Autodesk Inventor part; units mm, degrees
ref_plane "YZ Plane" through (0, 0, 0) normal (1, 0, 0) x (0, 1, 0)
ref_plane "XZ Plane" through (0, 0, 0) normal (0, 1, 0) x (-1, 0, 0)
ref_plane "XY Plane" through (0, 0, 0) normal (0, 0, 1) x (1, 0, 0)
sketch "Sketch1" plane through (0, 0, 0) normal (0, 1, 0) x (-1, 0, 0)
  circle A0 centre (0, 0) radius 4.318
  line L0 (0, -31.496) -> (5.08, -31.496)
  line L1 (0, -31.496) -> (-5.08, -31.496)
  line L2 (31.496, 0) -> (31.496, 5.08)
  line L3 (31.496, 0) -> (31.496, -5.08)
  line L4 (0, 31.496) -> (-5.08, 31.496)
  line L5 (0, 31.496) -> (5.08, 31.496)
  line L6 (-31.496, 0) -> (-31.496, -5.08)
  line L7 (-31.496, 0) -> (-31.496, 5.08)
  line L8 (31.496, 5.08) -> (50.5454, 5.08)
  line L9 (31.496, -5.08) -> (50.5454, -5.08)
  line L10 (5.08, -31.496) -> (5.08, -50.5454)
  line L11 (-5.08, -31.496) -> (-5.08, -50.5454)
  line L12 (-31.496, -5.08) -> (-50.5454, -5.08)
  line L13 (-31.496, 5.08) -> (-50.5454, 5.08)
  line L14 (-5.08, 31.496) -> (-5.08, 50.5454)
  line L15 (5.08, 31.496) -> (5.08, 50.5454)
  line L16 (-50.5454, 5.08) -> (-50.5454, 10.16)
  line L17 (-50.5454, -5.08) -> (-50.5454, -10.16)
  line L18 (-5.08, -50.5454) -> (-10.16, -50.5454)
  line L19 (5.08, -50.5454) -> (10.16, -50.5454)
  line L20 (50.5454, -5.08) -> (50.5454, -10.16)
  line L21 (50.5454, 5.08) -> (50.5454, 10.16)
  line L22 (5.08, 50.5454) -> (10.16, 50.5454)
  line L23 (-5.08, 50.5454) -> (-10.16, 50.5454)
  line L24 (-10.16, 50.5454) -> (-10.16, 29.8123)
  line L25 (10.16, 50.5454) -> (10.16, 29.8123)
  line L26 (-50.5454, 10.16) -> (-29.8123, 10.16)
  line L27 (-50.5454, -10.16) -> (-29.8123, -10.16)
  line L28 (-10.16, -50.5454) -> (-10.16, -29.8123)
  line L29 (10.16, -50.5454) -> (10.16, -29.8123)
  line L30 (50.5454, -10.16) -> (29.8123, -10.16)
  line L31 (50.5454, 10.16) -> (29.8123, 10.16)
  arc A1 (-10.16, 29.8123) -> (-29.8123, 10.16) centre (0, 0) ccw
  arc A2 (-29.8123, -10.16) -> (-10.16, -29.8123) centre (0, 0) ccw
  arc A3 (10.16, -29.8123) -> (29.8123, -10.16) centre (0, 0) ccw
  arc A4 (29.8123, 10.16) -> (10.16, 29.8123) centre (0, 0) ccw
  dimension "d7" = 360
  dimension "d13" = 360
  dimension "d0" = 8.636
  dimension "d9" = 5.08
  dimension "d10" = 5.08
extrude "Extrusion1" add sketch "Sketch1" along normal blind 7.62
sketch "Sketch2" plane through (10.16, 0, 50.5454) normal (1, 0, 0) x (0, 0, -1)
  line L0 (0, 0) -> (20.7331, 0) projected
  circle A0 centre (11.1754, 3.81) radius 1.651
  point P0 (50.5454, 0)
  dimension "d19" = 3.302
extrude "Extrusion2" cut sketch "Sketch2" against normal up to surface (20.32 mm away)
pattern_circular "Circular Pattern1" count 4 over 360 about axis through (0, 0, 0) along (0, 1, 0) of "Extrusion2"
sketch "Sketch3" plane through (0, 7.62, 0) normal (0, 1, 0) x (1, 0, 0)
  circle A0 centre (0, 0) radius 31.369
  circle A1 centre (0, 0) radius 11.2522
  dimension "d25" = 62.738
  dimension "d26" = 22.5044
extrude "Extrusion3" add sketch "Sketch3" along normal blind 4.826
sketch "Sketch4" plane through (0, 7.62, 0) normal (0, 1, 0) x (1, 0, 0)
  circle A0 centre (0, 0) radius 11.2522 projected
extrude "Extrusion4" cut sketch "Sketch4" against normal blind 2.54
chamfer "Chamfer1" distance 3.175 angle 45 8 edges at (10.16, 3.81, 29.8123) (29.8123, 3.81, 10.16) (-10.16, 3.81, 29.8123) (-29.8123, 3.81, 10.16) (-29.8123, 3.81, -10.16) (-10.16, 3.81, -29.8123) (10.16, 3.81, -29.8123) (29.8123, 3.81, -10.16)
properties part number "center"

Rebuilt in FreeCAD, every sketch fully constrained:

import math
import FreeCAD as App
import Part
import Sketcher

V = App.Vector
Q = App.Units.Quantity


def edges_at(feature, points):
    """Names of the edges that pass closest to the given points."""
    edges = feature.Shape.Edges
    near = lambda p: min(range(len(edges)), key=lambda i: edges[i].distToShape(Part.Vertex(*p))[0])
    return sorted({f"Edge{near(p) + 1}" for p in points})

doc = App.newDocument("Part")
body = doc.addObject("PartDesign::Body", "Body")

# Sketch on XZ plane
sketch1 = body.newObject("Sketcher::SketchObject", "Sketch")
sketch1.AttachmentSupport = (doc.getObject("XZ_Plane"), [""])
sketch1.MapMode = "FlatFace"
sketch1.addGeometry(Part.LineSegment(V(5.1, -31.5, 0), V(-5.1, -31.5, 0)), False)
sketch1.addGeometry(Part.LineSegment(V(-5.1, -31.5, 0), V(-5.1, -50.5, 0)), False)
sketch1.addGeometry(Part.LineSegment(V(-5.1, -50.5, 0), V(-10.2, -50.5, 0)), False)
sketch1.addGeometry(Part.LineSegment(V(-10.2, -50.5, 0), V(-10.2, -29.8, 0)), False)
sketch1.addGeometry(Part.ArcOfCircle(Part.Circle(V(0, 0, 0), V(0, 0, 1), 31.5), math.radians(-161), math.radians(-109)), False)
sketch1.addGeometry(Part.LineSegment(V(-29.8, -10.2, 0), V(-50.5, -10.2, 0)), False)
sketch1.addGeometry(Part.LineSegment(V(-50.5, -10.2, 0), V(-50.5, -5.1, 0)), False)
sketch1.addGeometry(Part.LineSegment(V(-50.5, -5.1, 0), V(-31.5, -5.1, 0)), False)
sketch1.addGeometry(Part.LineSegment(V(-31.5, -5.1, 0), V(-31.5, 5.1, 0)), False)
sketch1.addGeometry(Part.LineSegment(V(-31.5, 5.1, 0), V(-50.5, 5.1, 0)), False)
sketch1.addGeometry(Part.LineSegment(V(-50.5, 5.1, 0), V(-50.5, 10.2, 0)), False)
sketch1.addGeometry(Part.LineSegment(V(-50.5, 10.2, 0), V(-29.8, 10.2, 0)), False)
sketch1.addGeometry(Part.ArcOfCircle(Part.Circle(V(0, 0, 0), V(0, 0, 1), 31.5), math.radians(109), math.radians(161)), False)
sketch1.addGeometry(Part.LineSegment(V(-10.2, 29.8, 0), V(-10.2, 50.5, 0)), False)
sketch1.addGeometry(Part.LineSegment(V(-10.2, 50.5, 0), V(-5.1, 50.5, 0)), False)
sketch1.addGeometry(Part.LineSegment(V(-5.1, 50.5, 0), V(-5.1, 31.5, 0)), False)
sketch1.addGeometry(Part.LineSegment(V(-5.1, 31.5, 0), V(5.1, 31.5, 0)), False)
sketch1.addGeometry(Part.LineSegment(V(5.1, 31.5, 0), V(5.1, 50.5, 0)), False)
sketch1.addGeometry(Part.LineSegment(V(5.1, 50.5, 0), V(10.2, 50.5, 0)), False)
sketch1.addGeometry(Part.LineSegment(V(10.2, 50.5, 0), V(10.2, 29.8, 0)), False)
sketch1.addGeometry(Part.ArcOfCircle(Part.Circle(V(0, 0, 0), V(0, 0, 1), 31.5), math.radians(19), math.radians(71)), False)
sketch1.addGeometry(Part.LineSegment(V(29.8, 10.2, 0), V(50.5, 10.2, 0)), False)
sketch1.addGeometry(Part.LineSegment(V(50.5, 10.2, 0), V(50.5, 5.1, 0)), False)
sketch1.addGeometry(Part.LineSegment(V(50.5, 5.1, 0), V(31.5, 5.1, 0)), False)
sketch1.addGeometry(Part.LineSegment(V(31.5, 5.1, 0), V(31.5, -5.1, 0)), False)
sketch1.addGeometry(Part.LineSegment(V(31.5, -5.1, 0), V(50.5, -5.1, 0)), False)
sketch1.addGeometry(Part.LineSegment(V(50.5, -5.1, 0), V(50.5, -10.2, 0)), False)
sketch1.addGeometry(Part.LineSegment(V(50.5, -10.2, 0), V(29.8, -10.2, 0)), False)
sketch1.addGeometry(Part.ArcOfCircle(Part.Circle(V(0, 0, 0), V(0, 0, 1), 31.5), math.radians(-71), math.radians(-19)), False)
sketch1.addGeometry(Part.LineSegment(V(10.2, -29.8, 0), V(10.2, -50.5, 0)), False)
sketch1.addGeometry(Part.LineSegment(V(10.2, -50.5, 0), V(5.1, -50.5, 0)), False)
sketch1.addGeometry(Part.LineSegment(V(5.1, -50.5, 0), V(5.1, -31.5, 0)), False)
sketch1.addGeometry(Part.Circle(V(0, 0, 0), V(0, 0, 1), 4.3), False)
sketch1.addConstraint(Sketcher.Constraint("Coincident", 0, 2, 1, 1))
sketch1.addConstraint(Sketcher.Constraint("Coincident", 1, 2, 2, 1))
sketch1.addConstraint(Sketcher.Constraint("Coincident", 2, 2, 3, 1))
sketch1.addConstraint(Sketcher.Constraint("Coincident", 3, 2, 4, 2))
sketch1.addConstraint(Sketcher.Constraint("Coincident", 4, 1, 5, 1))
sketch1.addConstraint(Sketcher.Constraint("Coincident", 5, 2, 6, 1))
sketch1.addConstraint(Sketcher.Constraint("Coincident", 6, 2, 7, 1))
sketch1.addConstraint(Sketcher.Constraint("Coincident", 7, 2, 8, 1))
sketch1.addConstraint(Sketcher.Constraint("Coincident", 8, 2, 9, 1))
sketch1.addConstraint(Sketcher.Constraint("Coincident", 9, 2, 10, 1))
sketch1.addConstraint(Sketcher.Constraint("Coincident", 10, 2, 11, 1))
sketch1.addConstraint(Sketcher.Constraint("Coincident", 11, 2, 12, 2))
sketch1.addConstraint(Sketcher.Constraint("Coincident", 12, 1, 13, 1))
sketch1.addConstraint(Sketcher.Constraint("Coincident", 13, 2, 14, 1))
sketch1.addConstraint(Sketcher.Constraint("Coincident", 14, 2, 15, 1))
sketch1.addConstraint(Sketcher.Constraint("Coincident", 15, 2, 16, 1))
sketch1.addConstraint(Sketcher.Constraint("Coincident", 16, 2, 17, 1))
sketch1.addConstraint(Sketcher.Constraint("Coincident", 17, 2, 18, 1))
sketch1.addConstraint(Sketcher.Constraint("Coincident", 18, 2, 19, 1))
sketch1.addConstraint(Sketcher.Constraint("Coincident", 19, 2, 20, 2))
sketch1.addConstraint(Sketcher.Constraint("Coincident", 20, 1, 21, 1))
sketch1.addConstraint(Sketcher.Constraint("Coincident", 21, 2, 22, 1))
sketch1.addConstraint(Sketcher.Constraint("Coincident", 22, 2, 23, 1))
sketch1.addConstraint(Sketcher.Constraint("Coincident", 23, 2, 24, 1))
sketch1.addConstraint(Sketcher.Constraint("Coincident", 24, 2, 25, 1))
sketch1.addConstraint(Sketcher.Constraint("Coincident", 25, 2, 26, 1))
sketch1.addConstraint(Sketcher.Constraint("Coincident", 26, 2, 27, 1))
sketch1.addConstraint(Sketcher.Constraint("Coincident", 27, 2, 28, 2))
sketch1.addConstraint(Sketcher.Constraint("Coincident", 28, 1, 29, 1))
sketch1.addConstraint(Sketcher.Constraint("Coincident", 29, 2, 30, 1))
sketch1.addConstraint(Sketcher.Constraint("Coincident", 30, 2, 31, 1))
sketch1.addConstraint(Sketcher.Constraint("Coincident", 31, 2, 0, 1))
sketch1.addConstraint(Sketcher.Constraint("Horizontal", 0))
sketch1.addConstraint(Sketcher.Constraint("Vertical", 1))
sketch1.addConstraint(Sketcher.Constraint("Horizontal", 2))
sketch1.addConstraint(Sketcher.Constraint("Vertical", 3))
sketch1.addConstraint(Sketcher.Constraint("Horizontal", 5))
sketch1.addConstraint(Sketcher.Constraint("Vertical", 6))
sketch1.addConstraint(Sketcher.Constraint("Horizontal", 7))
sketch1.addConstraint(Sketcher.Constraint("Vertical", 8))
sketch1.addConstraint(Sketcher.Constraint("Horizontal", 9))
sketch1.addConstraint(Sketcher.Constraint("Vertical", 10))
sketch1.addConstraint(Sketcher.Constraint("Horizontal", 11))
sketch1.addConstraint(Sketcher.Constraint("Vertical", 13))
sketch1.addConstraint(Sketcher.Constraint("Horizontal", 14))
sketch1.addConstraint(Sketcher.Constraint("Vertical", 15))
sketch1.addConstraint(Sketcher.Constraint("Horizontal", 16))
sketch1.addConstraint(Sketcher.Constraint("Vertical", 17))
sketch1.addConstraint(Sketcher.Constraint("Horizontal", 18))
sketch1.addConstraint(Sketcher.Constraint("Vertical", 19))
sketch1.addConstraint(Sketcher.Constraint("Horizontal", 21))
sketch1.addConstraint(Sketcher.Constraint("Vertical", 22))
sketch1.addConstraint(Sketcher.Constraint("Horizontal", 23))
sketch1.addConstraint(Sketcher.Constraint("Vertical", 24))
sketch1.addConstraint(Sketcher.Constraint("Horizontal", 25))
sketch1.addConstraint(Sketcher.Constraint("Vertical", 26))
sketch1.addConstraint(Sketcher.Constraint("Horizontal", 27))
sketch1.addConstraint(Sketcher.Constraint("Vertical", 29))
sketch1.addConstraint(Sketcher.Constraint("Horizontal", 30))
sketch1.addConstraint(Sketcher.Constraint("Vertical", 31))
sketch1.addConstraint(Sketcher.Constraint("Coincident", 4, 3, -1, 1))
sketch1.addConstraint(Sketcher.Constraint("Coincident", 12, 3, -1, 1))
sketch1.addConstraint(Sketcher.Constraint("Coincident", 20, 3, -1, 1))
sketch1.addConstraint(Sketcher.Constraint("Coincident", 28, 3, -1, 1))
sketch1.addConstraint(Sketcher.Constraint("Coincident", 32, 3, -1, 1))
sketch1.addConstraint(Sketcher.Constraint("Equal", 4, 12))
sketch1.addConstraint(Sketcher.Constraint("Equal", 12, 20))
sketch1.addConstraint(Sketcher.Constraint("Equal", 20, 28))
sketch1.addConstraint(Sketcher.Constraint("Symmetric", 0, 2, 16, 2, -1, 1))
sketch1.addConstraint(Sketcher.Constraint("Symmetric", 2, 2, 18, 2, -1, 1))
sketch1.addConstraint(Sketcher.Constraint("Symmetric", 5, 2, 21, 2, -1, 1))
sketch1.addConstraint(Sketcher.Constraint("Symmetric", 7, 2, 23, 2, -1, 1))
sketch1.addConstraint(Sketcher.Constraint("Symmetric", 9, 2, 25, 2, -1, 1))
sketch1.addConstraint(Sketcher.Constraint("Symmetric", 13, 2, 29, 2, -1, 1))
sketch1.addConstraint(Sketcher.Constraint("Symmetric", 14, 2, 17, 2, -2))
sketch1.addConstraint(Sketcher.Constraint("Symmetric", 10, 2, 21, 2, -2))
sketch1.addConstraint(Sketcher.Constraint("Horizontal", 12, 1, 19, 2))
sketch1.addConstraint(Sketcher.Constraint("Horizontal", 9, 2, 22, 2))
sketch1.addConstraint(Sketcher.Constraint("Horizontal", 5, 2, 26, 2))
sketch1.addConstraint(Sketcher.Constraint("Vertical", 17, 2, 30, 2))
sketch1.addConstraint(Sketcher.Constraint("Equal", 25, 1))
sketch1.addConstraint(Sketcher.Constraint("Equal", 27, 3))
sketch1.addConstraint(Sketcher.Constraint("Equal", 30, 6))
sketch1.addConstraint(Sketcher.Constraint("Equal", 16, 8))
sketch1.addConstraint(Sketcher.Constraint("Diameter", 32, Q("0.34 in")))
sketch1.addConstraint(Sketcher.Constraint("DistanceX", 2, 2, 2, 1, Q("0.2 in")))
sketch1.addConstraint(Sketcher.Constraint("DistanceX", 0, 2, -1, 1, Q("0.2 in")))
sketch1.addConstraint(Sketcher.Constraint("Radius", 4, Q("1.24 in")))
sketch1.addConstraint(Sketcher.Constraint("DistanceY", 0, 2, -1, 1, Q("1.24 in")))
sketch1.addConstraint(Sketcher.Constraint("DistanceX", 5, 2, 5, 1, Q("20.733 mm")))
pad1 = body.newObject("PartDesign::Pad", "Pad")
pad1.Profile = sketch1
pad1.Length = Q("0.3 in")
pad1.Reversed = True

# Sketch on YZ plane
sketch2 = body.newObject("Sketcher::SketchObject", "Sketch001")
sketch2.AttachmentSupport = (doc.getObject("YZ_Plane"), [""])
sketch2.MapMode = "FlatFace"
sketch2.AttachmentOffset = App.Placement(V(0, 0, 0.4 * 25.4), App.Rotation())
sketch2.addGeometry(Part.Circle(V(3.8, 39.4, 0), V(0, 0, 1), 1.7), False)
sketch2.addConstraint(Sketcher.Constraint("Diameter", 0, Q("0.13 in")))
sketch2.addConstraint(Sketcher.Constraint("DistanceX", -1, 1, 0, 3, Q("0.15 in")))
sketch2.addConstraint(Sketcher.Constraint("DistanceY", -1, 1, 0, 3, Q("1.55 in")))
pocket1 = body.newObject("PartDesign::Pocket", "Pocket")
pocket1.Profile = sketch2
pocket1.Length = Q("0.8 in")
doc.recompute()

polarpattern = body.newObject("PartDesign::PolarPattern", "PolarPattern")
polarpattern.Originals = [pocket1]
polarpattern.Axis = (doc.getObject("Y_Axis"), [""])
polarpattern.Angle = 360
polarpattern.Occurrences = 4
body.Tip = polarpattern

# Sketch on XZ plane
sketch3 = body.newObject("Sketcher::SketchObject", "Sketch002")
sketch3.AttachmentSupport = (doc.getObject("XZ_Plane"), [""])
sketch3.MapMode = "FlatFace"
sketch3.AttachmentOffset = App.Placement(V(0, 0, -0.3 * 25.4), App.Rotation())
sketch3.addGeometry(Part.Circle(V(0, 0, 0), V(0, 0, 1), 31), False)
sketch3.addGeometry(Part.Circle(V(0, 0, 0), V(0, 0, 1), 11), False)
sketch3.addConstraint(Sketcher.Constraint("Coincident", 0, 3, -1, 1))
sketch3.addConstraint(Sketcher.Constraint("Coincident", 1, 3, -1, 1))
sketch3.addConstraint(Sketcher.Constraint("Diameter", 0, Q("2.47 in")))
sketch3.addConstraint(Sketcher.Constraint("Diameter", 1, Q("0.886 in")))
pad2 = body.newObject("PartDesign::Pad", "Pad001")
pad2.Profile = sketch3
pad2.Length = Q("0.19 in")
pad2.Reversed = True

# Sketch on XZ plane
sketch4 = body.newObject("Sketcher::SketchObject", "Sketch003")
sketch4.AttachmentSupport = (doc.getObject("XZ_Plane"), [""])
sketch4.MapMode = "FlatFace"
sketch4.AttachmentOffset = App.Placement(V(0, 0, -0.3 * 25.4), App.Rotation())
sketch4.addGeometry(Part.Circle(V(0, 0, 0), V(0, 0, 1), 11), False)
sketch4.addConstraint(Sketcher.Constraint("Coincident", 0, 3, -1, 1))
sketch4.addConstraint(Sketcher.Constraint("Diameter", 0, Q("0.886 in")))
pocket2 = body.newObject("PartDesign::Pocket", "Pocket001")
pocket2.Profile = sketch4
pocket2.Length = Q("0.1 in")
pocket2.Reversed = True
doc.recompute()

chamfer = body.newObject("PartDesign::Chamfer", "Chamfer")
chamfer.Base = (pocket2, edges_at(pocket2, [
    (10.16, 3.81, 29.812),
    (29.812, 3.81, 10.16),
    (-10.16, 3.81, 29.812),
    (-29.812, 3.81, 10.16),
    (-29.812, 3.81, -10.16),
    (-10.16, 3.81, -29.812),
    (10.16, 3.81, -29.812),
    (29.812, 3.81, -10.16),
]))
chamfer.Size = Q("0.125 in")

doc.recompute()
